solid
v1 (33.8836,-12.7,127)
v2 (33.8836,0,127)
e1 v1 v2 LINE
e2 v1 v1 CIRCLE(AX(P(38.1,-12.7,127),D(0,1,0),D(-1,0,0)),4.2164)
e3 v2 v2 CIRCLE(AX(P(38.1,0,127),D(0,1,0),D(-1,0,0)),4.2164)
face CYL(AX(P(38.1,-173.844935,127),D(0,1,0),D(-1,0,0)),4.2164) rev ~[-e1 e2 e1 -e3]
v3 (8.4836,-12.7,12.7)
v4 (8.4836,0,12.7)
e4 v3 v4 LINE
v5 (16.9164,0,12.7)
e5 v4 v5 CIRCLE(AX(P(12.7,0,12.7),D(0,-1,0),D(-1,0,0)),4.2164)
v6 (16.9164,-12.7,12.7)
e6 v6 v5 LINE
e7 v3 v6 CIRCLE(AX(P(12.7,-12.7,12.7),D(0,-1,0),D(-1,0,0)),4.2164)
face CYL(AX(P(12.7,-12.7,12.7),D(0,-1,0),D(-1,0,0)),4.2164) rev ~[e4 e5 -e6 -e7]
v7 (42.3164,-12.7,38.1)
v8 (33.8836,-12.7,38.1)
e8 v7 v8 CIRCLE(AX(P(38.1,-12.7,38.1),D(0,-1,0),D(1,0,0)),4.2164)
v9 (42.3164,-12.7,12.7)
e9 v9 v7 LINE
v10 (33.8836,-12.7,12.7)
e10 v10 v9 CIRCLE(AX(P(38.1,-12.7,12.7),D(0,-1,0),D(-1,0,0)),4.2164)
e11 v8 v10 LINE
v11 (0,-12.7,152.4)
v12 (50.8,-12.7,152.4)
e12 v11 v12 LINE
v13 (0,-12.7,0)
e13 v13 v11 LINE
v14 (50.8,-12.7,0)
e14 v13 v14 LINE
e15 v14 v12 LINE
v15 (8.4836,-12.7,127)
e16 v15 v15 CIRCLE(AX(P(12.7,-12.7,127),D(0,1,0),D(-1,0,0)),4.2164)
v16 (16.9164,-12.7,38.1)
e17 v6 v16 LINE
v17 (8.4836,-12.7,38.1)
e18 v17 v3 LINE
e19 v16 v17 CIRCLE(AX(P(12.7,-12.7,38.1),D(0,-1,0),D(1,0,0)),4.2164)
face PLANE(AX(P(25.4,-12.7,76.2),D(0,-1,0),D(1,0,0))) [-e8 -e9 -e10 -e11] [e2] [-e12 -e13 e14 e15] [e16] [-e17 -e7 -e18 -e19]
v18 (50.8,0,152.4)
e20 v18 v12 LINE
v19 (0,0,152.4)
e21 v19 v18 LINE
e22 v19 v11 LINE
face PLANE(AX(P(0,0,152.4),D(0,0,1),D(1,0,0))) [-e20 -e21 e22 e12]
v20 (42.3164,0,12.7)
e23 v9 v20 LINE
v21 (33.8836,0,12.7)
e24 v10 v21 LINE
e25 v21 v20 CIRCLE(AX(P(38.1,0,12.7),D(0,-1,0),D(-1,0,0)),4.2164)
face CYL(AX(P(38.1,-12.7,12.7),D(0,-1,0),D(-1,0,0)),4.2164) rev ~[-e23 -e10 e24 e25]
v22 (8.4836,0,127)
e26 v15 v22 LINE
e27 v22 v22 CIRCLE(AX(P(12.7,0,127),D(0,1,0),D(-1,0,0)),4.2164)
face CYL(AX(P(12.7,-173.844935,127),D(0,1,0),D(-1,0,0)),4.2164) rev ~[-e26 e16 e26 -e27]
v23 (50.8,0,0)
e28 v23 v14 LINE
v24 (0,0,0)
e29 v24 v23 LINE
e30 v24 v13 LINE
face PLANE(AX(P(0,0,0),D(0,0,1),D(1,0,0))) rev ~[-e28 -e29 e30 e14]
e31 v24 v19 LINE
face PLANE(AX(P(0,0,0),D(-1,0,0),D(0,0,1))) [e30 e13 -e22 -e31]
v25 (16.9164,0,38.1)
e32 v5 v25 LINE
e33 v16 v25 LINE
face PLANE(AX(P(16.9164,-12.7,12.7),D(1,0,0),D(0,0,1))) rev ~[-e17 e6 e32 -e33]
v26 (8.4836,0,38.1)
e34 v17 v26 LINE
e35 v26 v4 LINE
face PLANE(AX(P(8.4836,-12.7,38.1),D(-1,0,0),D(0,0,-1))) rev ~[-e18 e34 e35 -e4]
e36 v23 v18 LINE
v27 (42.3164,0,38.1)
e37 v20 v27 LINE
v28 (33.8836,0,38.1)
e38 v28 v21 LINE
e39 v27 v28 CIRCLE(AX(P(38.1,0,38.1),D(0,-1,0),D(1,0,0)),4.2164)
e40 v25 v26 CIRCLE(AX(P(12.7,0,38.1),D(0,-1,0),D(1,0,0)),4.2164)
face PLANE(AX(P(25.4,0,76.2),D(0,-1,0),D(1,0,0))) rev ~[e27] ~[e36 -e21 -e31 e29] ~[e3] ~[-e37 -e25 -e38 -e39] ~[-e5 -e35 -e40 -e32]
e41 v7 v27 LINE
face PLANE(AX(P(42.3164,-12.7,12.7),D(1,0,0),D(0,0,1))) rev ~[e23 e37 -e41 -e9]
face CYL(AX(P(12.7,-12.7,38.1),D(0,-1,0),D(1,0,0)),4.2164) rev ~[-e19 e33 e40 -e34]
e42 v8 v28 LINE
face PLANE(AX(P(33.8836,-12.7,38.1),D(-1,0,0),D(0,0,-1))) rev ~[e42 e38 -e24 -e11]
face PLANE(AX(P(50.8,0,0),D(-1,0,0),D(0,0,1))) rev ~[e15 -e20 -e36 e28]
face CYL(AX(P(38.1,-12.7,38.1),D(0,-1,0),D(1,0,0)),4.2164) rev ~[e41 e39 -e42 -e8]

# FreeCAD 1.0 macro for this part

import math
import FreeCAD as App
import Part
import Sketcher

V = App.Vector
Q = App.Units.Quantity


def add_polygon(sketch, points):
    """Adds a closed chain of lines whose ends are joined by coincident constraints."""
    first, n = sketch.GeometryCount, len(points)
    for a, b in zip(points, points[1:] + points[:1]):
        sketch.addGeometry(Part.LineSegment(App.Vector(*a, 0), App.Vector(*b, 0)), False)
    for i in range(n):
        sketch.addConstraint(Sketcher.Constraint("Coincident", first + i, 2, first + (i + 1) % n, 1))

doc = App.newDocument("Part")
body = doc.addObject("PartDesign::Body", "Body")

# Sketch on XZ plane
sketch1 = body.newObject("Sketcher::SketchObject", "Sketch")
sketch1.AttachmentSupport = (doc.getObject("XZ_Plane"), [""])
sketch1.MapMode = "FlatFace"
add_polygon(sketch1, [(0, 152.4), (0, 0), (50.8, 0), (50.8, 152.4)])  # lines 0-3
sketch1.addConstraint([
    Sketcher.Constraint("Vertical", 0),
    Sketcher.Constraint("Horizontal", 1),
    Sketcher.Constraint("Vertical", 2),
    Sketcher.Constraint("Horizontal", 3),
    Sketcher.Constraint("Coincident", 0, 2, -1, 1),
    Sketcher.Constraint("DistanceX", 1, 1, 1, 2, Q("2 in")),
    Sketcher.Constraint("DistanceY", 0, 2, 0, 1, Q("6 in")),
])
pad1 = body.newObject("PartDesign::Pad", "Pad")
pad1.Profile = sketch1
pad1.Length = Q("0.5 in")

# Sketch on XZ plane
sketch2 = body.newObject("Sketcher::SketchObject", "Sketch001")
sketch2.AttachmentSupport = (doc.getObject("XZ_Plane"), [""])
sketch2.MapMode = "FlatFace"
sketch2.AttachmentOffset = App.Placement(V(0, 0, 0.5 * 25.4), App.Rotation())
sketch2.addGeometry([
    Part.Circle(V(12.7, 127, 0), V(0, 0, 1), 4.2164),
    Part.Circle(V(38.1, 127, 0), V(0, 0, 1), 4.2164),
], False)
sketch2.addConstraint([
    Sketcher.Constraint("Equal", 0, 1),
    Sketcher.Constraint("Horizontal", 0, 3, 1, 3),
    Sketcher.Constraint("Diameter", 0, Q("0.332 in")),
    Sketcher.Constraint("DistanceY", -1, 1, 0, 3, Q("5 in")),
    Sketcher.Constraint("DistanceX", 0, 3, 1, 3, Q("1 in")),
    Sketcher.Constraint("DistanceX", -1, 1, 0, 3, Q("0.5 in")),
])
doc.recompute()
hole = body.newObject("PartDesign::Hole", "Hole")
hole.Profile = sketch2
hole.ThreadType = "None"
hole.Diameter = Q("0.332 in")
hole.DepthType = "ThroughAll"

# Sketch on XZ plane
sketch3 = body.newObject("Sketcher::SketchObject", "Sketch002")
sketch3.AttachmentSupport = (doc.getObject("XZ_Plane"), [""])
sketch3.MapMode = "FlatFace"
sketch3.AttachmentOffset = App.Placement(V(0, 0, 0.5 * 25.4), App.Rotation())
sketch3.addGeometry([
    Part.LineSegment(V(16.9164, 12.7, 0), V(16.9164, 38.1, 0)),  # 0
    Part.ArcOfCircle(Part.Circle(V(12.7, 38.1, 0), V(0, 0, 1), 4.2164), math.radians(0), math.radians(180)),  # 1
    Part.LineSegment(V(8.4836, 38.1, 0), V(8.4836, 12.7, 0)),  # 2
    Part.ArcOfCircle(Part.Circle(V(12.7, 12.7, 0), V(0, 0, 1), 4.2164), math.radians(180), math.radians(360)),  # 3
    Part.LineSegment(V(42.3164, 12.7, 0), V(42.3164, 38.1, 0)),  # 4
    Part.ArcOfCircle(Part.Circle(V(38.1, 38.1, 0), V(0, 0, 1), 4.2164), math.radians(0), math.radians(180)),  # 5
    Part.LineSegment(V(33.8836, 38.1, 0), V(33.8836, 12.7, 0)),  # 6
    Part.ArcOfCircle(Part.Circle(V(38.1, 12.7, 0), V(0, 0, 1), 4.2164), math.radians(180), math.radians(360)),  # 7
], False)
sketch3.addConstraint([
    Sketcher.Constraint("Tangent", 0, 2, 1, 1),
    Sketcher.Constraint("Tangent", 1, 2, 2, 1),
    Sketcher.Constraint("Tangent", 2, 2, 3, 1),
    Sketcher.Constraint("Tangent", 3, 2, 0, 1),
    Sketcher.Constraint("Tangent", 4, 2, 5, 1),
    Sketcher.Constraint("Tangent", 5, 2, 6, 1),
    Sketcher.Constraint("Tangent", 6, 2, 7, 1),
    Sketcher.Constraint("Tangent", 7, 2, 4, 1),
    Sketcher.Constraint("Vertical", 0),
    Sketcher.Constraint("Vertical", 2),
    Sketcher.Constraint("Vertical", 4),
    Sketcher.Constraint("Vertical", 6),
    Sketcher.Constraint("Equal", 3, 5),
    Sketcher.Constraint("Horizontal", 1, 3, 5, 3),
    Sketcher.Constraint("Horizontal", 3, 3, 7, 3),
    Sketcher.Constraint("DistanceY", 0, 1, 0, 2, Q("1 in")),
    Sketcher.Constraint("Radius", 1, Q("0.166 in")),
    Sketcher.Constraint("DistanceX", 1, 3, 5, 3, Q("1 in")),
    Sketcher.Constraint("DistanceX", -1, 1, 1, 3, Q("0.5 in")),
    Sketcher.Constraint("DistanceY", -1, 1, 1, 3, Q("1.5 in")),
])
pocket1 = body.newObject("PartDesign::Pocket", "Pocket")
pocket1.Profile = sketch3
pocket1.Type = "ThroughAll"

doc.recompute()
